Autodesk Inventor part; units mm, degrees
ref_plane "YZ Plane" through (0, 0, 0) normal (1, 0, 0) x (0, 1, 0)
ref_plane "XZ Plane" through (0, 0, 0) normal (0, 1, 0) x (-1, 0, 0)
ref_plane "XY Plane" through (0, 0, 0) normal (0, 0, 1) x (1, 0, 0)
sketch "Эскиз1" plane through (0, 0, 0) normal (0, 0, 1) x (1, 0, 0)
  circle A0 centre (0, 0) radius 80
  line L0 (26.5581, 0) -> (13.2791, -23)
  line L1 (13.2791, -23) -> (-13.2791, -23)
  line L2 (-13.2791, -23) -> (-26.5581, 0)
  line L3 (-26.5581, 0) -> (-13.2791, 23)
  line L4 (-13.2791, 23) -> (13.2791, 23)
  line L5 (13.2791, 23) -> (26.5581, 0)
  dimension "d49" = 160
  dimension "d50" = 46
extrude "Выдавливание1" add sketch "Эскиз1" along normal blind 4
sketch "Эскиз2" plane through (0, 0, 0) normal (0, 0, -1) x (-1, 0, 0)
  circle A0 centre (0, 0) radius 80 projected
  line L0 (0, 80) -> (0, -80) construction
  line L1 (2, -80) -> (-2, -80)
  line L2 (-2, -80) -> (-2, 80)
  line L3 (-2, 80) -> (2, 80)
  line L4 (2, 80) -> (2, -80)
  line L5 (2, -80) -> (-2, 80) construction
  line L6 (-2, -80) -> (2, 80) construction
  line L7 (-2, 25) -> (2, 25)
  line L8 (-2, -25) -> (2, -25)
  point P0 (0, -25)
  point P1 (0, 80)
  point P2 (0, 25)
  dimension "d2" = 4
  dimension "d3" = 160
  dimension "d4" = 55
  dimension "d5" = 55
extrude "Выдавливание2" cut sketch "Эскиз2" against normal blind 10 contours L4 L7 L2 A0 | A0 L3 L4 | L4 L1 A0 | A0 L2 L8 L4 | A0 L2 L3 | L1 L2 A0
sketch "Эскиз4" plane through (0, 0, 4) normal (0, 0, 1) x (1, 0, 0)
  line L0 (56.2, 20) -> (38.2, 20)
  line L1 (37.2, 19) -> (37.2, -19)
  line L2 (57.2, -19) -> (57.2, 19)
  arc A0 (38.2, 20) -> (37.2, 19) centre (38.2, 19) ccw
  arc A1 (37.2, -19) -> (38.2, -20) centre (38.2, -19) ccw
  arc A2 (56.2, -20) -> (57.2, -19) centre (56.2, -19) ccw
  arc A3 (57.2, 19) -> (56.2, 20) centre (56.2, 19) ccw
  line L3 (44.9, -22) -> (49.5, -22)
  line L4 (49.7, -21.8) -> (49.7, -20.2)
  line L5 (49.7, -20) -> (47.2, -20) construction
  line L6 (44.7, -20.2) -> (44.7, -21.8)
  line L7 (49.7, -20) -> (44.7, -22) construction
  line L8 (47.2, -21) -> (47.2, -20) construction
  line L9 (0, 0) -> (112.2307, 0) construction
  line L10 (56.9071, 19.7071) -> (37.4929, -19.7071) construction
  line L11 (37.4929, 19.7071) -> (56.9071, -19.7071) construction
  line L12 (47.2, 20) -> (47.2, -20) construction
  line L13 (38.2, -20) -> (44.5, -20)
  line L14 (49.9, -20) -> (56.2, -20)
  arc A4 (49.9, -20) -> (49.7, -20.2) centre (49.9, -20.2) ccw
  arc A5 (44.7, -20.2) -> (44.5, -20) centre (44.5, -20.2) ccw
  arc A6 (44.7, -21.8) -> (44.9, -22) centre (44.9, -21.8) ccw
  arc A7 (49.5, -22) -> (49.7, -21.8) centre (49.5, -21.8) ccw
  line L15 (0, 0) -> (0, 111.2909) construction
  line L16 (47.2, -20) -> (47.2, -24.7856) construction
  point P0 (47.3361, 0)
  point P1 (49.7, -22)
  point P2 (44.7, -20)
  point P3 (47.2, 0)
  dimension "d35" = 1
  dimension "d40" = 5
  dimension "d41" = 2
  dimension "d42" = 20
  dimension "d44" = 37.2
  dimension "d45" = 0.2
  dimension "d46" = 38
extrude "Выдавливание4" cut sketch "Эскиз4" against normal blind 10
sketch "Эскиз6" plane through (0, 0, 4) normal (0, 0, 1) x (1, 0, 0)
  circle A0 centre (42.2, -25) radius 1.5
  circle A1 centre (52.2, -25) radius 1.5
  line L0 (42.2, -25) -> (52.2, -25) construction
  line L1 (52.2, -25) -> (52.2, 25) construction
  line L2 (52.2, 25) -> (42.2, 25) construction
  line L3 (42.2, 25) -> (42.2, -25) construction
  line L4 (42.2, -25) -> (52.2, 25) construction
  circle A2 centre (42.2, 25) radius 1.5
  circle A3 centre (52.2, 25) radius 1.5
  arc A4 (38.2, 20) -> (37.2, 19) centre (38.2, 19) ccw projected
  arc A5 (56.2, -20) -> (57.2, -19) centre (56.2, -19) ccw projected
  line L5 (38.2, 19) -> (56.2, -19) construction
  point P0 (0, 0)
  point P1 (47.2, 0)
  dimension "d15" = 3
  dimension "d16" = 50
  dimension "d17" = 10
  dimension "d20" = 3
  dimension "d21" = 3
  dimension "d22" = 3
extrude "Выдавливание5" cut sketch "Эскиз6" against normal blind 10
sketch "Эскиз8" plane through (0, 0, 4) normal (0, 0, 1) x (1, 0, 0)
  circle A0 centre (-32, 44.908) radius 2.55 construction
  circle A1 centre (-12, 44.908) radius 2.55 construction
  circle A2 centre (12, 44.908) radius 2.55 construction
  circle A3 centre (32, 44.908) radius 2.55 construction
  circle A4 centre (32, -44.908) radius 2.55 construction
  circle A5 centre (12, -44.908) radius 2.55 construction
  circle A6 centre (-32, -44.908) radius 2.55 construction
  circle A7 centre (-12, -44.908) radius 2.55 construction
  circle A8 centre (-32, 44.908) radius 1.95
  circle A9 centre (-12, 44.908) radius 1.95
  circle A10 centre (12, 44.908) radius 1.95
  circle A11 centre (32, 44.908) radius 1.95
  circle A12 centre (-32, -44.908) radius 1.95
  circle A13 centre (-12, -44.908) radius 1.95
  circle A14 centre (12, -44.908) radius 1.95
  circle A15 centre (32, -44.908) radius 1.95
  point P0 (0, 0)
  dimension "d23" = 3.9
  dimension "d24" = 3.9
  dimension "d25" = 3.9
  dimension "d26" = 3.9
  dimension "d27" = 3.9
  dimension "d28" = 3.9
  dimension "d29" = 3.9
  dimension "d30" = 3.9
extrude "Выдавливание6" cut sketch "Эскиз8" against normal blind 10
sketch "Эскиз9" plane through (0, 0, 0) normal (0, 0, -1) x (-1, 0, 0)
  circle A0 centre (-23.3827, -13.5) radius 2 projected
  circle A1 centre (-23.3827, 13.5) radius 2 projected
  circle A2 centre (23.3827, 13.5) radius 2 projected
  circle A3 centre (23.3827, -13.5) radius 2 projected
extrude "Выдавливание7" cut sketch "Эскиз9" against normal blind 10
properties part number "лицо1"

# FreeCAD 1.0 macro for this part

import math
import FreeCAD as App
import Part
import Sketcher

V = App.Vector
Q = App.Units.Quantity


def add_polygon(sketch, points):
    """Adds a closed chain of lines whose ends are joined by coincident constraints."""
    first, n = sketch.GeometryCount, len(points)
    for a, b in zip(points, points[1:] + points[:1]):
        sketch.addGeometry(Part.LineSegment(App.Vector(*a, 0), App.Vector(*b, 0)), False)
    for i in range(n):
        sketch.addConstraint(Sketcher.Constraint("Coincident", first + i, 2, first + (i + 1) % n, 1))

doc = App.newDocument("Part")
body = doc.addObject("PartDesign::Body", "Body")

# Sketch on XY plane
sketch1 = doc.addObject("Sketcher::SketchObject", "Sketch")
body.addObject(sketch1)
sketch1.AttachmentSupport = (doc.XY_Plane, [""])
sketch1.MapMode = "FlatFace"
sketch1.addGeometry(Part.Circle(V(0, 0, 0), V(0, 0, 1), 80), False)  # 0
add_polygon(sketch1, [(13, 23), (27, 0), (13, -23), (-13, -23), (-27, 0), (-13, 23)])  # lines 1-6
sketch1.addConstraint([
    Sketcher.Constraint("Horizontal", 3),
    Sketcher.Constraint("Horizontal", 6),
    Sketcher.Constraint("Coincident", 0, 3, -1, 1),
    Sketcher.Constraint("Symmetric", 1, 2, 4, 2, -1, 1),
    Sketcher.Constraint("Symmetric", 2, 2, 5, 2, -1, 1),
    Sketcher.Constraint("PointOnObject", 1, 2, -1),
    Sketcher.Constraint("Parallel", 1, 4),
    Sketcher.Constraint("Vertical", 3, 2, 5, 2),
    Sketcher.Constraint("Diameter", 0, 160.0),
    Sketcher.Constraint("DistanceY", 3, 2, 5, 2, 46.0),
    Sketcher.Constraint("Angle", 1, Q("-60 deg")),
    Sketcher.Constraint("DistanceX", 3, 2, 3, 1, 26.5582),
])
pad1 = doc.addObject("PartDesign::Pad", "Pad")
body.addObject(pad1)
pad1.Profile = sketch1
pad1.Length = 4

# Sketch on XY plane
sketch2 = doc.addObject("Sketcher::SketchObject", "Sketch001")
body.addObject(sketch2)
sketch2.AttachmentSupport = (doc.XY_Plane, [""])
sketch2.MapMode = "FlatFace"
add_polygon(sketch2, [(-2, 25), (-2, 80), (2, 80), (2, 25)])  # lines 0-3
add_polygon(sketch2, [(-2, -80), (-2, -25), (2, -25), (2, -80)])  # lines 4-7
sketch2.addConstraint([
    Sketcher.Constraint("Vertical", 0),
    Sketcher.Constraint("Horizontal", 1),
    Sketcher.Constraint("Vertical", 2),
    Sketcher.Constraint("Horizontal", 3),
    Sketcher.Constraint("Vertical", 4),
    Sketcher.Constraint("Horizontal", 5),
    Sketcher.Constraint("Vertical", 6),
    Sketcher.Constraint("Horizontal", 7),
    Sketcher.Constraint("Symmetric", 2, 2, 4, 2, -1, 1),
    Sketcher.Constraint("Symmetric", 0, 2, 6, 2, -1, 1),
    Sketcher.Constraint("Vertical", 3, 2, 4, 2),
    Sketcher.Constraint("DistanceX", 1, 1, 1, 2, 4.0),
    Sketcher.Constraint("DistanceY", 0, 1, 0, 2, 55.0),
    Sketcher.Constraint("DistanceY", 6, 2, 1, 2, 160.0),
])
pocket1 = doc.addObject("PartDesign::Pocket", "Pocket")
body.addObject(pocket1)
pocket1.Profile = sketch2
pocket1.Length = 10
pocket1.Reversed = True

# Sketch on XY plane
sketch3 = doc.addObject("Sketcher::SketchObject", "Sketch002")
body.addObject(sketch3)
sketch3.AttachmentSupport = (doc.XY_Plane, [""])
sketch3.MapMode = "FlatFace"
sketch3.AttachmentOffset = App.Placement(V(0, 0, 4), App.Rotation())
sketch3.addGeometry([
    Part.ArcOfCircle(Part.Circle(V(56.2, 19, 0), V(0, 0, 1), 1), math.radians(0), math.radians(90)),  # 0
    Part.LineSegment(V(56.2, 20, 0), V(38.2, 20, 0)),  # 1
    Part.ArcOfCircle(Part.Circle(V(38.2, 19, 0), V(0, 0, 1), 1), math.radians(90), math.radians(180)),  # 2
    Part.LineSegment(V(37.2, 19, 0), V(37.2, -19, 0)),  # 3
    Part.ArcOfCircle(Part.Circle(V(38.2, -19, 0), V(0, 0, 1), 1), math.radians(180), math.radians(270)),  # 4
    Part.LineSegment(V(38.2, -20, 0), V(44.5, -20, 0)),  # 5
    Part.ArcOfCircle(Part.Circle(V(44.5, -20.2, 0), V(0, 0, 1), 0.2), math.radians(0), math.radians(90)),  # 6
    Part.LineSegment(V(44.7, -20.2, 0), V(44.7, -21.8, 0)),  # 7
    Part.ArcOfCircle(Part.Circle(V(44.9, -21.8, 0), V(0, 0, 1), 0.2), math.radians(180), math.radians(270)),  # 8
    Part.LineSegment(V(44.9, -22, 0), V(49.5, -22, 0)),  # 9
    Part.ArcOfCircle(Part.Circle(V(49.5, -21.8, 0), V(0, 0, 1), 0.2), math.radians(-90), math.radians(0)),  # 10
    Part.LineSegment(V(49.7, -21.8, 0), V(49.7, -20.2, 0)),  # 11
    Part.ArcOfCircle(Part.Circle(V(49.9, -20.2, 0), V(0, 0, 1), 0.2), math.radians(90), math.radians(180)),  # 12
    Part.LineSegment(V(49.9, -20, 0), V(56.2, -20, 0)),  # 13
    Part.ArcOfCircle(Part.Circle(V(56.2, -19, 0), V(0, 0, 1), 1), math.radians(-90), math.radians(0)),  # 14
    Part.LineSegment(V(57.2, -19, 0), V(57.2, 19, 0)),  # 15
], False)
sketch3.addConstraint([
    Sketcher.Constraint("Tangent", 0, 2, 1, 1),
    Sketcher.Constraint("Tangent", 1, 2, 2, 1),
    Sketcher.Constraint("Tangent", 2, 2, 3, 1),
    Sketcher.Constraint("Tangent", 3, 2, 4, 1),
    Sketcher.Constraint("Tangent", 4, 2, 5, 1),
    Sketcher.Constraint("Tangent", 5, 2, 6, 2),
    Sketcher.Constraint("Tangent", 6, 1, 7, 1),
    Sketcher.Constraint("Tangent", 7, 2, 8, 1),
    Sketcher.Constraint("Tangent", 8, 2, 9, 1),
    Sketcher.Constraint("Tangent", 9, 2, 10, 1),
    Sketcher.Constraint("Tangent", 10, 2, 11, 1),
    Sketcher.Constraint("Tangent", 11, 2, 12, 2),
    Sketcher.Constraint("Tangent", 12, 1, 13, 1),
    Sketcher.Constraint("Tangent", 13, 2, 14, 1),
    Sketcher.Constraint("Tangent", 14, 2, 15, 1),
    Sketcher.Constraint("Tangent", 15, 2, 0, 1),
    Sketcher.Constraint("Horizontal", 1),
    Sketcher.Constraint("Vertical", 3),
    Sketcher.Constraint("Horizontal", 5),
    Sketcher.Constraint("Vertical", 7),
    Sketcher.Constraint("Horizontal", 9),
    Sketcher.Constraint("Vertical", 11),
    Sketcher.Constraint("Horizontal", 13),
    Sketcher.Constraint("Vertical", 15),
    Sketcher.Constraint("Equal", 0, 2),
    Sketcher.Constraint("Equal", 2, 4),
    Sketcher.Constraint("Equal", 6, 8),
    Sketcher.Constraint("Equal", 8, 10),
    Sketcher.Constraint("Equal", 10, 12),
    Sketcher.Constraint("Equal", 4, 14),
    Sketcher.Constraint("Horizontal", 6, 3, 12, 3),
    Sketcher.Constraint("Equal", 5, 13),
    Sketcher.Constraint("Radius", 0, 1.0),
    Sketcher.Constraint("Radius", 6, 0.2),
    Sketcher.Constraint("DistanceY", 3, 2, 3, 1, 38.0),
    Sketcher.Constraint("DistanceY", -1, 1, 0, 2, 20.0),
    Sketcher.Constraint("DistanceX", 6, 3, 10, 3, 5.0),
    Sketcher.Constraint("DistanceY", 8, 2, 5, 2, 2.0),
    Sketcher.Constraint("DistanceX", 2, 2, 15, 2, 20.0),
    Sketcher.Constraint("DistanceX", -1, 1, 2, 2, 37.2),
])
pocket2 = doc.addObject("PartDesign::Pocket", "Pocket001")
body.addObject(pocket2)
pocket2.Profile = sketch3
pocket2.Length = 10

# Sketch on XY plane
sketch4 = doc.addObject("Sketcher::SketchObject", "Sketch003")
body.addObject(sketch4)
sketch4.AttachmentSupport = (doc.XY_Plane, [""])
sketch4.MapMode = "FlatFace"
sketch4.AttachmentOffset = App.Placement(V(0, 0, 4), App.Rotation())
sketch4.addGeometry([
    Part.Circle(V(42.2, -25, 0), V(0, 0, 1), 1.5),
    Part.Circle(V(52.2, -25, 0), V(0, 0, 1), 1.5),
    Part.Circle(V(42.2, 25, 0), V(0, 0, 1), 1.5),
    Part.Circle(V(52.2, 25, 0), V(0, 0, 1), 1.5),
], False)
sketch4.addConstraint([
    Sketcher.Constraint("Equal", 0, 1),
    Sketcher.Constraint("Equal", 1, 2),
    Sketcher.Constraint("Equal", 2, 3),
    Sketcher.Constraint("Symmetric", 0, 3, 2, 3, -1),
    Sketcher.Constraint("Symmetric", 1, 3, 3, 3, -1),
    Sketcher.Constraint("Horizontal", 0, 3, 1, 3),
    Sketcher.Constraint("Diameter", 0, 3.0),
    Sketcher.Constraint("DistanceX", 0, 3, 1, 3, 10.0),
    Sketcher.Constraint("DistanceY", 0, 3, 2, 3, 50.0),
    Sketcher.Constraint("DistanceX", -1, 1, 0, 3, 42.2),
])
pocket3 = doc.addObject("PartDesign::Pocket", "Pocket002")
body.addObject(pocket3)
pocket3.Profile = sketch4
pocket3.Length = 10

# Sketch on XY plane
sketch5 = doc.addObject("Sketcher::SketchObject", "Sketch004")
body.addObject(sketch5)
sketch5.AttachmentSupport = (doc.XY_Plane, [""])
sketch5.MapMode = "FlatFace"
sketch5.AttachmentOffset = App.Placement(V(0, 0, 4), App.Rotation())
sketch5.addGeometry([
    Part.Circle(V(-32, 44.9, 0), V(0, 0, 1), 1.9),  # 0
    Part.Circle(V(-12, 44.9, 0), V(0, 0, 1), 1.9),  # 1
    Part.Circle(V(12, 44.9, 0), V(0, 0, 1), 1.9),  # 2
    Part.Circle(V(32, 44.9, 0), V(0, 0, 1), 1.9),  # 3
    Part.Circle(V(-32, -44.9, 0), V(0, 0, 1), 1.9),  # 4
    Part.Circle(V(-12, -44.9, 0), V(0, 0, 1), 1.9),  # 5
    Part.Circle(V(12, -44.9, 0), V(0, 0, 1), 1.9),  # 6
    Part.Circle(V(32, -44.9, 0), V(0, 0, 1), 1.9),  # 7
], False)
sketch5.addConstraint([
    Sketcher.Constraint("Equal", 0, 1),
    Sketcher.Constraint("Equal", 1, 2),
    Sketcher.Constraint("Equal", 2, 3),
    Sketcher.Constraint("Equal", 3, 4),
    Sketcher.Constraint("Equal", 4, 5),
    Sketcher.Constraint("Equal", 5, 6),
    Sketcher.Constraint("Equal", 6, 7),
    Sketcher.Constraint("Symmetric", 3, 3, 4, 3, -1, 1),
    Sketcher.Constraint("Symmetric", 2, 3, 5, 3, -1, 1),
    Sketcher.Constraint("Symmetric", 1, 3, 6, 3, -1, 1),
    Sketcher.Constraint("Symmetric", 0, 3, 7, 3, -1, 1),
    Sketcher.Constraint("Symmetric", 1, 3, 2, 3, -2),
    Sketcher.Constraint("Symmetric", 0, 3, 3, 3, -2),
    Sketcher.Constraint("Horizontal", 0, 3, 1, 3),
    Sketcher.Constraint("Diameter", 0, 3.9),
    Sketcher.Constraint("DistanceX", 0, 3, -1, 1, 32.0),
    Sketcher.Constraint("DistanceX", 1, 3, -1, 1, 12.0),
    Sketcher.Constraint("DistanceY", -1, 1, 0, 3, 44.908),
])
pocket4 = doc.addObject("PartDesign::Pocket", "Pocket003")
body.addObject(pocket4)
pocket4.Profile = sketch5
pocket4.Length = 10

# Sketch on XY plane
sketch6 = doc.addObject("Sketcher::SketchObject", "Sketch005")
body.addObject(sketch6)
sketch6.AttachmentSupport = (doc.XY_Plane, [""])
sketch6.MapMode = "FlatFace"
sketch6.addGeometry([
    Part.Circle(V(23.4, -13.5, 0), V(0, 0, 1), 2),
    Part.Circle(V(23.4, 13.5, 0), V(0, 0, 1), 2),
    Part.Circle(V(-23.4, 13.5, 0), V(0, 0, 1), 2),
    Part.Circle(V(-23.4, -13.5, 0), V(0, 0, 1), 2),
], False)
sketch6.addConstraint([
    Sketcher.Constraint("Equal", 0, 1),
    Sketcher.Constraint("Equal", 1, 2),
    Sketcher.Constraint("Equal", 2, 3),
    Sketcher.Constraint("Symmetric", 0, 3, 2, 3, -1, 1),
    Sketcher.Constraint("Symmetric", 1, 3, 3, 3, -1, 1),
    Sketcher.Constraint("Symmetric", 1, 3, 2, 3, -2),
    Sketcher.Constraint("Diameter", 0, 4.0),
    Sketcher.Constraint("DistanceY", 0, 3, 1, 3, 27.0),
    Sketcher.Constraint("DistanceX", -1, 1, 0, 3, 23.3827),
])
pocket5 = doc.addObject("PartDesign::Pocket", "Pocket004")
body.addObject(pocket5)
pocket5.Profile = sketch6
pocket5.Length = 10
pocket5.Reversed = True

doc.recompute()
